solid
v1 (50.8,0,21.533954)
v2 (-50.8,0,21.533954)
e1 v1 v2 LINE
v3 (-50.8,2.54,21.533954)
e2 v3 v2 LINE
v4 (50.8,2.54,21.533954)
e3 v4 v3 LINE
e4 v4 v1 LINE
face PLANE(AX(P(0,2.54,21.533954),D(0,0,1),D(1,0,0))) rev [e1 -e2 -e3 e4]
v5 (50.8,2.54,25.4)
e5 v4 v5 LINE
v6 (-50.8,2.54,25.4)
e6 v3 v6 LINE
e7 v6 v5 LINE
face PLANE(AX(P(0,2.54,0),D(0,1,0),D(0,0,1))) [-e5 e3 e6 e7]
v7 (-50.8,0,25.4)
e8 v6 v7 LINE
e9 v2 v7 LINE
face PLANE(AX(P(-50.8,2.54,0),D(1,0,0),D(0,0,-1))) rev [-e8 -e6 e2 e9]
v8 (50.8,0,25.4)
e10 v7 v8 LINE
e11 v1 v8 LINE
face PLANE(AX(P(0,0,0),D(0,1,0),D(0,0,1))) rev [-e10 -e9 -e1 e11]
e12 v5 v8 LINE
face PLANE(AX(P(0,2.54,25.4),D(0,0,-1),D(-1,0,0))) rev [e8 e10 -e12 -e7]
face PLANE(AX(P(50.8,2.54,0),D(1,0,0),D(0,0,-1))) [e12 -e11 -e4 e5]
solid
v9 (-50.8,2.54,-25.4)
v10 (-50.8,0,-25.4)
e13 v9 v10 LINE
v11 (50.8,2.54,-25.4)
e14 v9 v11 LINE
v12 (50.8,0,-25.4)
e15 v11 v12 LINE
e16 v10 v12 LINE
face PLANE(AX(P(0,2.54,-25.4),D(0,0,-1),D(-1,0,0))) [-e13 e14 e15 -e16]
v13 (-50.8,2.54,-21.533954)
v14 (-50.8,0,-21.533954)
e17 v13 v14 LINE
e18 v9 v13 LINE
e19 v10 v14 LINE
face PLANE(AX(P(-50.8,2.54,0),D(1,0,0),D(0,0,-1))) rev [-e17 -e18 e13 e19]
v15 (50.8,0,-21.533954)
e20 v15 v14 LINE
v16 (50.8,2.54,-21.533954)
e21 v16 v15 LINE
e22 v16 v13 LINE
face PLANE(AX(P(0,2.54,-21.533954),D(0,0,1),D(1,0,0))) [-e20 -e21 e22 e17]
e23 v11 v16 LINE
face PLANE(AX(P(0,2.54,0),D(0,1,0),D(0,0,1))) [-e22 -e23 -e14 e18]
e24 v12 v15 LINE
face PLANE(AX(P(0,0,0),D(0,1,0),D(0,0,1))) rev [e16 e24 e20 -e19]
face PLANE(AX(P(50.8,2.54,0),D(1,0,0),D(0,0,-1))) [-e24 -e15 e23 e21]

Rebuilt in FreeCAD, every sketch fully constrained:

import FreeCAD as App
import Part
import Sketcher
from FreeCAD import Vector
Q = App.Units.Quantity


def add_polygon(sketch, points):
    """Adds a closed chain of lines whose ends are joined by coincident constraints."""
    first, n = sketch.GeometryCount, len(points)
    for a, b in zip(points, points[1:] + points[:1]):
        sketch.addGeometry(Part.LineSegment(App.Vector(*a, 0), App.Vector(*b, 0)), False)
    for i in range(n):
        sketch.addConstraint(Sketcher.Constraint("Coincident", first + i, 2, first + (i + 1) % n, 1))

doc = App.newDocument("Part")
body = doc.addObject("PartDesign::Body", "Body")

# Sketch on XZ plane
sketch1 = doc.addObject("Sketcher::SketchObject", "Sketch")
body.addObject(sketch1)
sketch1.AttachmentSupport = (doc.XZ_Plane, [""])
sketch1.MapMode = "FlatFace"
add_polygon(sketch1, [(-50.8, 21.5), (-50.8, 25.4), (50.8, 25.4), (50.8, 21.5)])  # lines 0-3
sketch1.addConstraint([
    Sketcher.Constraint("Vertical", 0),
    Sketcher.Constraint("Horizontal", 1),
    Sketcher.Constraint("Vertical", 2),
    Sketcher.Constraint("Horizontal", 3),
    Sketcher.Constraint("DistanceX", 1, 1, 1, 2, Q("4 in")),
    Sketcher.Constraint("DistanceX", 0, 2, -1, 1, Q("2 in")),
    Sketcher.Constraint("DistanceY", -1, 1, 0, 2, Q("1 in")),
    Sketcher.Constraint("DistanceY", 0, 1, 0, 2, 3.866046),
])
pad1 = doc.addObject("PartDesign::Pad", "Pad")
body.addObject(pad1)
pad1.Profile = sketch1
pad1.Length = Q("0.1 in")
pad1.Reversed = True
body2 = doc.addObject("PartDesign::Body", "Body001")

# Sketch on XZ plane
sketch2 = doc.addObject("Sketcher::SketchObject", "Sketch001")
body2.addObject(sketch2)
sketch2.AttachmentSupport = (doc.getObject("XZ_Plane001"), [""])
sketch2.MapMode = "FlatFace"
add_polygon(sketch2, [(-50.8, -25.4), (-50.8, -21.5), (50.8, -21.5), (50.8, -25.4)])  # lines 0-3
sketch2.addConstraint([
    Sketcher.Constraint("Vertical", 0),
    Sketcher.Constraint("Horizontal", 1),
    Sketcher.Constraint("Vertical", 2),
    Sketcher.Constraint("Horizontal", 3),
    Sketcher.Constraint("DistanceX", 1, 1, 1, 2, Q("4 in")),
    Sketcher.Constraint("DistanceX", 0, 2, -1, 1, Q("2 in")),
    Sketcher.Constraint("DistanceY", 2, 2, -1, 1, Q("1 in")),
    Sketcher.Constraint("DistanceY", 0, 1, 0, 2, 3.866046),
])
pad2 = doc.addObject("PartDesign::Pad", "Pad001")
body2.addObject(pad2)
pad2.Profile = sketch2
pad2.Length = Q("0.1 in")
pad2.Reversed = True

doc.recompute()
